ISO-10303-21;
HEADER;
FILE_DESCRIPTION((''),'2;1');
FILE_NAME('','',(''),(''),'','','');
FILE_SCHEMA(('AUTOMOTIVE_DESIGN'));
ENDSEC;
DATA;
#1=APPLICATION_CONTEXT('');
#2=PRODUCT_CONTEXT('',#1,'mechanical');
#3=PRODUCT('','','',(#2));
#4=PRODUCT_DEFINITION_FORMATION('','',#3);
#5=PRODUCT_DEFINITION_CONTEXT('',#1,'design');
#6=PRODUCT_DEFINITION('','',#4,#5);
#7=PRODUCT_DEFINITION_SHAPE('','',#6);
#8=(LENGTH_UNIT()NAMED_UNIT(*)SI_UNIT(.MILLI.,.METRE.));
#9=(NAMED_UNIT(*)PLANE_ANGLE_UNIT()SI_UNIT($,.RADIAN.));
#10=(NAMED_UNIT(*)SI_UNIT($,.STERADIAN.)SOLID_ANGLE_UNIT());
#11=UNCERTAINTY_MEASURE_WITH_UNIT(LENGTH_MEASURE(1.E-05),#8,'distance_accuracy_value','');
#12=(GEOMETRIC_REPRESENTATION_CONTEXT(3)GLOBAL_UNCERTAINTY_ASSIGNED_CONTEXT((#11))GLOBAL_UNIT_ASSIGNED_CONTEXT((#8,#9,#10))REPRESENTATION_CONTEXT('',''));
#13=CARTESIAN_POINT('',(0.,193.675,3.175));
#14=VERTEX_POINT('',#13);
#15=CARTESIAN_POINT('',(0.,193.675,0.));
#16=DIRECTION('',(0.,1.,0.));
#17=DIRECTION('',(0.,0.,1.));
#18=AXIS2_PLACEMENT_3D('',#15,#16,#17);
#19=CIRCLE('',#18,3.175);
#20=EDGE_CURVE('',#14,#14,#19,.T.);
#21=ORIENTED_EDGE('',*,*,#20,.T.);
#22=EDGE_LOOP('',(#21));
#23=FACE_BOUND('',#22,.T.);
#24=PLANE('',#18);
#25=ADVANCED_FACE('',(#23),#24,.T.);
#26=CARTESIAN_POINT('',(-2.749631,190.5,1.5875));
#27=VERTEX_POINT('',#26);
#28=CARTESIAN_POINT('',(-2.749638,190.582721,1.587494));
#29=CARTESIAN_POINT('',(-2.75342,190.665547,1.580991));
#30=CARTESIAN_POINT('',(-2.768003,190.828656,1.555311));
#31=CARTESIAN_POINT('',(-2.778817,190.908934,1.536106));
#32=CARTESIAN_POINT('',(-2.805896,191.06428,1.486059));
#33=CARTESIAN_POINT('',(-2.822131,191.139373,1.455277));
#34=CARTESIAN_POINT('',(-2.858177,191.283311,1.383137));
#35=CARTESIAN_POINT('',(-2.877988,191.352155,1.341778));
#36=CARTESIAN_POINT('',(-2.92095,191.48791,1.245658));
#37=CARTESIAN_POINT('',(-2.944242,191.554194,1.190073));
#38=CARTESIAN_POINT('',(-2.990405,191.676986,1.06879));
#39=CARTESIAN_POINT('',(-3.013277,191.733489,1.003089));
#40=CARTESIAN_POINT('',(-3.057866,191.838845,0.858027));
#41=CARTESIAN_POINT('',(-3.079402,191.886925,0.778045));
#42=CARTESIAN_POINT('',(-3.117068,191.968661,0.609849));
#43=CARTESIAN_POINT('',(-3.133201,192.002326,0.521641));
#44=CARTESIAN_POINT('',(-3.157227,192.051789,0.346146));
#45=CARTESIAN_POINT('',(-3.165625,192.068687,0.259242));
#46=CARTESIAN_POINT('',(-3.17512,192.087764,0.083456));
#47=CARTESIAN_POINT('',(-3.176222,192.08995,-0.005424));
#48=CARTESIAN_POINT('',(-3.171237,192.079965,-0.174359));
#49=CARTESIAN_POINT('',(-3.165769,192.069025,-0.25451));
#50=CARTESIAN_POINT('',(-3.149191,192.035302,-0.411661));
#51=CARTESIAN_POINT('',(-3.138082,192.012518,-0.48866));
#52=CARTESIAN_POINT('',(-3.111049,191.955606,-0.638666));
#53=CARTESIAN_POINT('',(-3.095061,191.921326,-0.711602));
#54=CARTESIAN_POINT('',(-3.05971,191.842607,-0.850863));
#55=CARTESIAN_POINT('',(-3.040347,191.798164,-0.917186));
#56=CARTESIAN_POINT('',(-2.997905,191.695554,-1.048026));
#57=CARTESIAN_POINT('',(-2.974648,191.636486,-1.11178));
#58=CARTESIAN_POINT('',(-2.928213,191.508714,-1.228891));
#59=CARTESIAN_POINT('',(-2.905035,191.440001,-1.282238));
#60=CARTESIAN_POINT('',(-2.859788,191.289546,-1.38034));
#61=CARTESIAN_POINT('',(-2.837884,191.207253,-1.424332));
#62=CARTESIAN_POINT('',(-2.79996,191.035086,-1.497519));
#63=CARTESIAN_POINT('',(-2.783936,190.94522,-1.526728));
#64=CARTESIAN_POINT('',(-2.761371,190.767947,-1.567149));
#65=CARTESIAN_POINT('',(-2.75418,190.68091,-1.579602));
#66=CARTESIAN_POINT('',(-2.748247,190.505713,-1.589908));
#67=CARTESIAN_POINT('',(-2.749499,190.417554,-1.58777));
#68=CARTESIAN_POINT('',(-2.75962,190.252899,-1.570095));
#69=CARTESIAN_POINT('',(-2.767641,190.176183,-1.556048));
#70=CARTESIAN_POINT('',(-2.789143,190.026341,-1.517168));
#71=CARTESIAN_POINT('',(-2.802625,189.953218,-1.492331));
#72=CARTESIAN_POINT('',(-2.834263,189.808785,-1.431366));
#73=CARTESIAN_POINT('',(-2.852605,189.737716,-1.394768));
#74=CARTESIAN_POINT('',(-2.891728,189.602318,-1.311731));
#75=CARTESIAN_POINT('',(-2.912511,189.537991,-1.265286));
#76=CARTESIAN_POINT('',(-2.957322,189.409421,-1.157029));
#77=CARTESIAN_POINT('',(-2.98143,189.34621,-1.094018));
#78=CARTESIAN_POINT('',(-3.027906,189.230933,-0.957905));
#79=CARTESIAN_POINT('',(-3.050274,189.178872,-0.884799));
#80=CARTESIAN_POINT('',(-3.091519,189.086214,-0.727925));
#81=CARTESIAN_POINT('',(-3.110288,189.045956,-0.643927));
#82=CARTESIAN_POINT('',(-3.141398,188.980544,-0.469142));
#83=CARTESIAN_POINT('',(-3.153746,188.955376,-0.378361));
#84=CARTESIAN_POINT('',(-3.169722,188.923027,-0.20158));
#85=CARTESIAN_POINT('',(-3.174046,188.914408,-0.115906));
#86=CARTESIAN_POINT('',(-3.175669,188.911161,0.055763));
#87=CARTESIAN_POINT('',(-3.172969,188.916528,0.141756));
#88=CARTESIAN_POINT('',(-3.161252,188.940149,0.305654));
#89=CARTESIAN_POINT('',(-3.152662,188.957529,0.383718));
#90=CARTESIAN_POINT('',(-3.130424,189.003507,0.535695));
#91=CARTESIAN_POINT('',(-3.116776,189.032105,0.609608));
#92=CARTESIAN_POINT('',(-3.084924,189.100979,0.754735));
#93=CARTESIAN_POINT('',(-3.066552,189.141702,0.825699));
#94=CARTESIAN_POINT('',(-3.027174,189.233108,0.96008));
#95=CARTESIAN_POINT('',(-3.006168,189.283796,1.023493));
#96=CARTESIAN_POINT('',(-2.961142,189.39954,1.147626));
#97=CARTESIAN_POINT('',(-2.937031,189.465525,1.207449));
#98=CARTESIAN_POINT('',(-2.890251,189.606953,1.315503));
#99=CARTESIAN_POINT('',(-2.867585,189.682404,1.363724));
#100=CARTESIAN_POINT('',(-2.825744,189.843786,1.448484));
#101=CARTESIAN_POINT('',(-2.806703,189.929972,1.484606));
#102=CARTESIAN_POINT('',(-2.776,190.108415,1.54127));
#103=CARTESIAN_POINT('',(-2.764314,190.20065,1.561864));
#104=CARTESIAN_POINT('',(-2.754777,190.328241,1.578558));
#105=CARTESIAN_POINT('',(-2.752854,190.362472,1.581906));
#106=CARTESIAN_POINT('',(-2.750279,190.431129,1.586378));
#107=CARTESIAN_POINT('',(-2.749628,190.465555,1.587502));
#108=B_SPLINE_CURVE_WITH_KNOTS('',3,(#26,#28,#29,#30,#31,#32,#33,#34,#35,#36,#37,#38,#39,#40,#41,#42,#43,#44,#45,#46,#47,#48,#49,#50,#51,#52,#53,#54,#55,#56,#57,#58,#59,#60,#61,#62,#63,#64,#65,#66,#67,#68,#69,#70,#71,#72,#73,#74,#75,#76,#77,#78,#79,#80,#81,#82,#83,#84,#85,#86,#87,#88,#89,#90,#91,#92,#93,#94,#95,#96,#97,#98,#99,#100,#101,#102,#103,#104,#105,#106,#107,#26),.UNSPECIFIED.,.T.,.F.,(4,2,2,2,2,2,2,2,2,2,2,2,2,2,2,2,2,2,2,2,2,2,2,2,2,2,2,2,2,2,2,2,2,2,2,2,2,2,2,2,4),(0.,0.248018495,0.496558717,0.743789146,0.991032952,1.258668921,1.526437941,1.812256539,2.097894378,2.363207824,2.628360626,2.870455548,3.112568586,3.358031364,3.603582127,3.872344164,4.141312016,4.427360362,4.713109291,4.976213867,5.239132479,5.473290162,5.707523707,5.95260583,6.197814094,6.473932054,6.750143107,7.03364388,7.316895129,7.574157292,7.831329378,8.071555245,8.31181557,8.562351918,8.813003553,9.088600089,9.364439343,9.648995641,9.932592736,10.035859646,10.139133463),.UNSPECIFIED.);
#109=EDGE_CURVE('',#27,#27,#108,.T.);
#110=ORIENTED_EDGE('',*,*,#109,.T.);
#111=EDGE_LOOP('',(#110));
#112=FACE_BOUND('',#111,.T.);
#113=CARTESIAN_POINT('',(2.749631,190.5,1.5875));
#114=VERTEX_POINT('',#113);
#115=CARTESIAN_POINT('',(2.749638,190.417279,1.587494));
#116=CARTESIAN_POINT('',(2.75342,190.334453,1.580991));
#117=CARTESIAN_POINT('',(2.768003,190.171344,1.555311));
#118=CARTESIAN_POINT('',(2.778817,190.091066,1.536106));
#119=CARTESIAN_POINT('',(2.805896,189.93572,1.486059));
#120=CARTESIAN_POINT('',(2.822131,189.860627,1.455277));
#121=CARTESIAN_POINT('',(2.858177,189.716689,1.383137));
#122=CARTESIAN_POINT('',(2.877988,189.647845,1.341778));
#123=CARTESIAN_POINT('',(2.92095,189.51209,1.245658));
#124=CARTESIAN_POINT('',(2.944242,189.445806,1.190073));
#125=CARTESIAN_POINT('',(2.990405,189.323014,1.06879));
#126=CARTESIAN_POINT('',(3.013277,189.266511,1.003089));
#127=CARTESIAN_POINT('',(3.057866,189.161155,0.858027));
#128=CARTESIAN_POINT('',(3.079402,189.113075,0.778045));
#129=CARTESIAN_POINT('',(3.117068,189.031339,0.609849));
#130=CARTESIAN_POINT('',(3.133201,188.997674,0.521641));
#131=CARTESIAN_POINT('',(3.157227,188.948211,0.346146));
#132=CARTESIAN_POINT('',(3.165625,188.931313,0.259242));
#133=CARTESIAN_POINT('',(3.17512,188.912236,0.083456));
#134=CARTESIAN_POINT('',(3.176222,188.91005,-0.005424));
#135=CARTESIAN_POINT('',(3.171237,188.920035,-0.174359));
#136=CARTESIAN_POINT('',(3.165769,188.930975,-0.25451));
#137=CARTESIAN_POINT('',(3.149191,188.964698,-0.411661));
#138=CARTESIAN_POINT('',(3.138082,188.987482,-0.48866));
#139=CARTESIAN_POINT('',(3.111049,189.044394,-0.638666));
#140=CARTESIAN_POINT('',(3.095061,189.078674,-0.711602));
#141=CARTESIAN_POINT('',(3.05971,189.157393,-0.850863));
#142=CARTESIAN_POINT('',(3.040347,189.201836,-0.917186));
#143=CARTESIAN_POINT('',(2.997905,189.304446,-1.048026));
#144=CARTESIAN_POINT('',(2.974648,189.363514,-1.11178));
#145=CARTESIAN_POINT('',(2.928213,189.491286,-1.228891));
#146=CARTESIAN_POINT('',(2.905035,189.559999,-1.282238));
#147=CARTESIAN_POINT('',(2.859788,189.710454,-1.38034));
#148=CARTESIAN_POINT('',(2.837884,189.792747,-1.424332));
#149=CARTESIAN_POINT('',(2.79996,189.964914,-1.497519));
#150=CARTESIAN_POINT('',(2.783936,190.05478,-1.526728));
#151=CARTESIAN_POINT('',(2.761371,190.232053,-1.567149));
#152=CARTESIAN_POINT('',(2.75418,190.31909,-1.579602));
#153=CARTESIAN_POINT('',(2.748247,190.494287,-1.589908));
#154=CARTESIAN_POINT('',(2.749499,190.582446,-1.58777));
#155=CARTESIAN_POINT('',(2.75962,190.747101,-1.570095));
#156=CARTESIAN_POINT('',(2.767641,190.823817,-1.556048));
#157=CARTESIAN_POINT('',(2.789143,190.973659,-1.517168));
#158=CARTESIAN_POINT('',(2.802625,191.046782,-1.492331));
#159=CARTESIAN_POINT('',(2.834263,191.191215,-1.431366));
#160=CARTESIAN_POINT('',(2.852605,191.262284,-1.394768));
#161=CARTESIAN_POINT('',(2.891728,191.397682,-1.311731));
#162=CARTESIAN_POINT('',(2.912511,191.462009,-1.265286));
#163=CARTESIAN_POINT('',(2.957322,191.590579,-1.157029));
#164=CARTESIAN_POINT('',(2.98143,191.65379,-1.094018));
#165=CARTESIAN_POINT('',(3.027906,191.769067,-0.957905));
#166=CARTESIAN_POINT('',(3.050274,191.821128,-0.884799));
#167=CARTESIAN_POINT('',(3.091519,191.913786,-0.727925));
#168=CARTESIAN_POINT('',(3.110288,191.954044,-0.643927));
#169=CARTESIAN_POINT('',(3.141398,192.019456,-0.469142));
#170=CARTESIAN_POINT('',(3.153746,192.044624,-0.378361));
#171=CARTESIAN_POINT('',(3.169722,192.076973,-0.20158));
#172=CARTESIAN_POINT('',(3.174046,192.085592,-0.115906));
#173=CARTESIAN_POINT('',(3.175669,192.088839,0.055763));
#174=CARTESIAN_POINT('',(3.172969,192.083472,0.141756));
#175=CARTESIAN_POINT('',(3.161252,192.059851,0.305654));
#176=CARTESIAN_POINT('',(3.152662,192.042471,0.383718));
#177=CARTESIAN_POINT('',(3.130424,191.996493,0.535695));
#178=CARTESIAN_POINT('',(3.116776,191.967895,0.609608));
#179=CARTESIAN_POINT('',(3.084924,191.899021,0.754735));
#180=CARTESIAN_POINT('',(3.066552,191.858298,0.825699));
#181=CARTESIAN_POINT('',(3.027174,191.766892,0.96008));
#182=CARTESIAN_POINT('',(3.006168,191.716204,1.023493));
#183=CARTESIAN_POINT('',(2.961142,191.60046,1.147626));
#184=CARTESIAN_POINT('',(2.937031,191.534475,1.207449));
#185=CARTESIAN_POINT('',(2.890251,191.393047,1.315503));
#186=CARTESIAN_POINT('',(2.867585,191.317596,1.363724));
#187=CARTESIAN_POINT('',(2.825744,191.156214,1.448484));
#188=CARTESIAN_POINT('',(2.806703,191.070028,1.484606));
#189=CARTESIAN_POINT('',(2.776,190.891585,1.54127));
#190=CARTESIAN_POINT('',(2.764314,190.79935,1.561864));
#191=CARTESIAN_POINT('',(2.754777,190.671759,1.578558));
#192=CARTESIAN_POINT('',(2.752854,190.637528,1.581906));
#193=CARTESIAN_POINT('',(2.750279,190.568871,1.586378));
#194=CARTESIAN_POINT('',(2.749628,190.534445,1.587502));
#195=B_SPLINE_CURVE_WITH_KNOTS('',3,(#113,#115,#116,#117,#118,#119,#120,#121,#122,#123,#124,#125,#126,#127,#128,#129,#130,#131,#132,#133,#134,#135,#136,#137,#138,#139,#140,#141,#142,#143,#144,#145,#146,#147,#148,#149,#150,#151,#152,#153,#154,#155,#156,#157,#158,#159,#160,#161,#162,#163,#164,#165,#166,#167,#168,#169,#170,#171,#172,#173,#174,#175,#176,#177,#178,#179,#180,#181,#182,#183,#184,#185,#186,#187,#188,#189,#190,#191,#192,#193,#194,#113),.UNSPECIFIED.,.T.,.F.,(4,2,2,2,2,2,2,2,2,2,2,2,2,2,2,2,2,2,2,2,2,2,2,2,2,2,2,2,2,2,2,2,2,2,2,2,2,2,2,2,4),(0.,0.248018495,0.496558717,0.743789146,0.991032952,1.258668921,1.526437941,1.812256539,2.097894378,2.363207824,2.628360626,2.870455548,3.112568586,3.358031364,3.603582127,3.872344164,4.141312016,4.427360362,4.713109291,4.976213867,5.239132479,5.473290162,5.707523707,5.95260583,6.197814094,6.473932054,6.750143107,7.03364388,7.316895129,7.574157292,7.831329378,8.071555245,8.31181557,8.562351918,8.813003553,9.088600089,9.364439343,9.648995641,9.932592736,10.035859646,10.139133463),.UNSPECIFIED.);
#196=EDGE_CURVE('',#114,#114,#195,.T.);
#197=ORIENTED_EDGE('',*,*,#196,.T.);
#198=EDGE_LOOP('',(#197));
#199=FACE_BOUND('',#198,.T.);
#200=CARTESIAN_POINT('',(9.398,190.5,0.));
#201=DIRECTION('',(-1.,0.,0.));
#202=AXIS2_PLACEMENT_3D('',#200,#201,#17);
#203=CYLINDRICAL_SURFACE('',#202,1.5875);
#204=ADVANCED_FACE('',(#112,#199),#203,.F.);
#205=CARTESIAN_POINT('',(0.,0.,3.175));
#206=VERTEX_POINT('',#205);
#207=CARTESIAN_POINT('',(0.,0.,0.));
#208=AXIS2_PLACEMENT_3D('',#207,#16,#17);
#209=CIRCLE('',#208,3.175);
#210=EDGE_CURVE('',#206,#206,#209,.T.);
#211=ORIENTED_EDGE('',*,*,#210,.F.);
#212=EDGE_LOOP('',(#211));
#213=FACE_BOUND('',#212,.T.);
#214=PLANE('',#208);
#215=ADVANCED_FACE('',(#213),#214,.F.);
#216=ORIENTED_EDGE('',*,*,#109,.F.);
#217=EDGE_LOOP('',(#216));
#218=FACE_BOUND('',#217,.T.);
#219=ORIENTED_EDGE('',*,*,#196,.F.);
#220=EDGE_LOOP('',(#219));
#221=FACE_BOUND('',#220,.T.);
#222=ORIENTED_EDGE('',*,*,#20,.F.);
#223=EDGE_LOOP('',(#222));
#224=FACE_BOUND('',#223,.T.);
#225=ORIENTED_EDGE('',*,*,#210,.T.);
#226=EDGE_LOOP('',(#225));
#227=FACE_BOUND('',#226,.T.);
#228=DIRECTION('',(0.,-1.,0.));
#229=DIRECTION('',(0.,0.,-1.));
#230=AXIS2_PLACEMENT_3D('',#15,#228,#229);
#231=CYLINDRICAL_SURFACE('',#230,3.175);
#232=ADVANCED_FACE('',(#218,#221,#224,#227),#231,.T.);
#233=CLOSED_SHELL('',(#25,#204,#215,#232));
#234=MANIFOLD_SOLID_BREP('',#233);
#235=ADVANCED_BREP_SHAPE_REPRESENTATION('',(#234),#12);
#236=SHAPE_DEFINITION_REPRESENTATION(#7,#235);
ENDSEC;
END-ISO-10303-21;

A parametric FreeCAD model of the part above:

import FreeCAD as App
import Part
import Sketcher
from FreeCAD import Vector
Q = App.Units.Quantity

doc = App.newDocument("Part")
body = doc.addObject("PartDesign::Body", "Body")

# Sketch on XZ plane
sketch1 = body.newObject("Sketcher::SketchObject", "Sketch")
sketch1.AttachmentSupport = (doc.getObject("XZ_Plane"), [""])
sketch1.MapMode = "FlatFace"
sketch1.addGeometry(Part.Circle(Vector(0, 0, 0), Vector(0, 0, 1), 3.175), False)
sketch1.addConstraint(Sketcher.Constraint("Coincident", 0, 3, -1, 1))
sketch1.addConstraint(Sketcher.Constraint("Diameter", 0, Q("0.25 in")))
pad1 = body.newObject("PartDesign::Pad", "Pad")
pad1.Profile = sketch1
pad1.Length = Q("7.625 in")
pad1.Reversed = True

# Sketch on YZ plane
sketch2 = body.newObject("Sketcher::SketchObject", "Sketch001")
sketch2.AttachmentSupport = (doc.getObject("YZ_Plane"), [""])
sketch2.MapMode = "FlatFace"
sketch2.addGeometry(Part.Circle(Vector(190.5, 0, 0), Vector(0, 0, 1), 1.5875), False)
sketch2.addConstraint(Sketcher.Constraint("PointOnObject", 0, 3, -1))
sketch2.addConstraint(Sketcher.Constraint("Diameter", 0, Q("0.125 in")))
sketch2.addConstraint(Sketcher.Constraint("DistanceX", -1, 1, 0, 3, Q("7.5 in")))
pocket1 = body.newObject("PartDesign::Pocket", "Pocket")
pocket1.Profile = sketch2
pocket1.Type = "ThroughAll"
pocket1.Midplane = True

doc.recompute()
